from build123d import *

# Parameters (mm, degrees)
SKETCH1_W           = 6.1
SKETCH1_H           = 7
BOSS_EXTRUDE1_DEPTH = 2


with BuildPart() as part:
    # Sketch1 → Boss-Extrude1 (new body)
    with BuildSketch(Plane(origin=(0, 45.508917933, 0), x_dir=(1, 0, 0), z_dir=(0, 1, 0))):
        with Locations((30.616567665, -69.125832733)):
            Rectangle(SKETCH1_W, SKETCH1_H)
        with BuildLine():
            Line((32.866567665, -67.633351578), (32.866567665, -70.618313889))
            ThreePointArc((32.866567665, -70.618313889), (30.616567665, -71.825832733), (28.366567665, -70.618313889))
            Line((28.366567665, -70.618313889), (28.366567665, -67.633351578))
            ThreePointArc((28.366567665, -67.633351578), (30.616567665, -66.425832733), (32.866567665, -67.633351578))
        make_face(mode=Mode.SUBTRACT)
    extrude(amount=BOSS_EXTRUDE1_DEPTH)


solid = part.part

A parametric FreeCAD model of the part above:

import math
import FreeCAD as App
import Part
import Sketcher

V = App.Vector


def add_polygon(sketch, points):
    """Adds a closed chain of lines whose ends are joined by coincident constraints."""
    first, n = sketch.GeometryCount, len(points)
    for a, b in zip(points, points[1:] + points[:1]):
        sketch.addGeometry(Part.LineSegment(App.Vector(*a, 0), App.Vector(*b, 0)), False)
    for i in range(n):
        sketch.addConstraint(Sketcher.Constraint("Coincident", first + i, 2, first + (i + 1) % n, 1))

doc = App.newDocument("Part")
params = doc.addObject("Spreadsheet::Sheet", "Params")
for row, (alias, value) in enumerate([
    ("sketch1_radius", "2.7 mm"),
    ("sketch1_height", "7 mm"),
    ("sketch1_width", "6.1 mm"),
    ("pad1_length", "2 mm"),
], start=1):
    params.set(f"A{row}", alias)
    params.set(f"B{row}", "=" + value)
    params.setAlias(f"B{row}", alias)

body = doc.addObject("PartDesign::Body", "Body")

# Sketch on XZ plane
sketch1 = body.newObject("Sketcher::SketchObject", "Sketch")
sketch1.AttachmentSupport = (doc.getObject("XZ_Plane"), [""])
sketch1.MapMode = "FlatFace"
sketch1.AttachmentOffset = App.Placement(V(0, 0, -45.508918), App.Rotation())
add_polygon(sketch1, [(27.566568, 65.625833), (27.566568, 72.625833), (33.666568, 72.625833), (33.666568, 65.625833)])  # lines 0-3
sketch1.addGeometry(Part.ArcOfCircle(Part.Circle(V(30.616568, 69.125833, 0), V(0, 0, 1), 2.7), math.radians(-146.44269), math.radians(-33.55731)), False)  # 4
sketch1.addGeometry(Part.LineSegment(V(32.866568, 67.633352, 0), V(32.866568, 70.618314, 0)), False)  # 5
sketch1.addGeometry(Part.ArcOfCircle(Part.Circle(V(30.616568, 69.125833, 0), V(0, 0, 1), 2.7), math.radians(33.55731), math.radians(146.44269)), False)  # 6
sketch1.addGeometry(Part.LineSegment(V(28.366568, 70.618314, 0), V(28.366568, 67.633352, 0)), False)  # 7
sketch1.addConstraint([
    Sketcher.Constraint("Coincident", 4, 2, 5, 1),
    Sketcher.Constraint("Coincident", 5, 2, 6, 1),
    Sketcher.Constraint("Coincident", 6, 2, 7, 1),
    Sketcher.Constraint("Coincident", 7, 2, 4, 1),
    Sketcher.Constraint("Vertical", 0),
    Sketcher.Constraint("Horizontal", 1),
    Sketcher.Constraint("Vertical", 2),
    Sketcher.Constraint("Horizontal", 3),
    Sketcher.Constraint("Vertical", 5),
    Sketcher.Constraint("Vertical", 7),
    Sketcher.Constraint("Coincident", 6, 3, 4, 3),
    Sketcher.Constraint("Equal", 4, 6),
    Sketcher.Constraint("Horizontal", 5, 2, 6, 2),
    Sketcher.Constraint("Radius", 4, 2.7),
    Sketcher.Constraint("DistanceY", 0, 1, 0, 2, 7.0),
    Sketcher.Constraint("DistanceX", 1, 1, 1, 2, 6.1),
    Sketcher.Constraint("DistanceY", 6, 3, 0, 2, 3.5),
    Sketcher.Constraint("DistanceX", 4, 2, 2, 2, 0.8),
    Sketcher.Constraint("DistanceX", 0, 2, 6, 2, 0.8),
    Sketcher.Constraint("DistanceY", -1, 1, 4, 2, 67.633352),
    Sketcher.Constraint("DistanceX", -1, 1, 4, 3, 30.616568),
])
sketch1.setExpression("Constraints[17]", "Params.sketch1_radius")
sketch1.setExpression("Constraints[18]", "Params.sketch1_height")
sketch1.setExpression("Constraints[19]", "Params.sketch1_width")
pad1 = body.newObject("PartDesign::Pad", "Pad")
pad1.Profile = sketch1
pad1.setExpression("Length", "Params.pad1_length")
pad1.Reversed = True

doc.recompute()
